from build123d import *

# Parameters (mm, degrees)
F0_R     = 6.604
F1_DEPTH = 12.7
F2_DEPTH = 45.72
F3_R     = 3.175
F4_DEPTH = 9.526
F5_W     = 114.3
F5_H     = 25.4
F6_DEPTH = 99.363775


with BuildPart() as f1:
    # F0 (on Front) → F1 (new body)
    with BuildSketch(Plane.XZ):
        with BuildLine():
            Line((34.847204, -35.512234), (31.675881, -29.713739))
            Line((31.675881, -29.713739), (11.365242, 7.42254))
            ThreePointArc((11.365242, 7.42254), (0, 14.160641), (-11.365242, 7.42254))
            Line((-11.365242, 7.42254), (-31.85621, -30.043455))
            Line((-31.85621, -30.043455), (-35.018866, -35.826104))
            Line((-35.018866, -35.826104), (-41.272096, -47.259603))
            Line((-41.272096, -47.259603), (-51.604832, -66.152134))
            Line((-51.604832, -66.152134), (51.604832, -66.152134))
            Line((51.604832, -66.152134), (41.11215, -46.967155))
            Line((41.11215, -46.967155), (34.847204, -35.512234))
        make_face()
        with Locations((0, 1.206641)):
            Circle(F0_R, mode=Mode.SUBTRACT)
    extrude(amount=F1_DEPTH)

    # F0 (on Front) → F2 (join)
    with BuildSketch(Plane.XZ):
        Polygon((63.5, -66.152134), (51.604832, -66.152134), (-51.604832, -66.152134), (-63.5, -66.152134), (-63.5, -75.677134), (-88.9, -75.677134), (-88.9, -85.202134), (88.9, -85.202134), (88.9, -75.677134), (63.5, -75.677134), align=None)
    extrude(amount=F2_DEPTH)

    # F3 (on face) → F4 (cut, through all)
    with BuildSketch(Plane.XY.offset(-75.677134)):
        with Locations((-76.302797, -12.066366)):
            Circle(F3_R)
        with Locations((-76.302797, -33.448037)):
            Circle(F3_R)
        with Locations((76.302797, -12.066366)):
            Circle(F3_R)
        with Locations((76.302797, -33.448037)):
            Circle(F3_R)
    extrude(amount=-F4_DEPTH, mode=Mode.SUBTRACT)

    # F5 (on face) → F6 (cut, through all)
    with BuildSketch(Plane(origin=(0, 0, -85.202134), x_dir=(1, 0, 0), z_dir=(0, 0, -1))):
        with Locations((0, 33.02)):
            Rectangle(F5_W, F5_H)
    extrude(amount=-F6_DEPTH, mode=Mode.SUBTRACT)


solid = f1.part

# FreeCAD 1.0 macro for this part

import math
import FreeCAD as App
import Part
import Sketcher
Q = App.Units.Quantity


def add_polygon(sketch, points):
    """Adds a closed chain of lines whose ends are joined by coincident constraints."""
    first, n = sketch.GeometryCount, len(points)
    for a, b in zip(points, points[1:] + points[:1]):
        sketch.addGeometry(Part.LineSegment(App.Vector(*a, 0), App.Vector(*b, 0)), False)
    for i in range(n):
        sketch.addConstraint(Sketcher.Constraint("Coincident", first + i, 2, first + (i + 1) % n, 1))

doc = App.newDocument("Part")
body = doc.addObject("PartDesign::Body", "Body")

# Sketch on XZ plane
sketch1 = body.newObject("Sketcher::SketchObject", "Sketch")
sketch1.AttachmentSupport = (doc.getObject("XZ_Plane"), [""])
sketch1.MapMode = "FlatFace"
sketch1.addGeometry(Part.LineSegment(App.Vector(34.847204, -35.512234, 0), App.Vector(31.675881, -29.713739, 0)), False)
sketch1.addGeometry(Part.LineSegment(App.Vector(31.675881, -29.713739, 0), App.Vector(11.365242, 7.42254, 0)), False)
sketch1.addGeometry(Part.ArcOfCircle(Part.Circle(App.Vector(0, 1.20664, 0), App.Vector(0, 0, 1), 12.954001), math.radians(28.675215), math.radians(151.324785)), False)
sketch1.addGeometry(Part.LineSegment(App.Vector(-11.365242, 7.42254, 0), App.Vector(-31.85621, -30.043455, 0)), False)
sketch1.addGeometry(Part.LineSegment(App.Vector(-31.85621, -30.043455, 0), App.Vector(-35.018866, -35.826104, 0)), False)
sketch1.addGeometry(Part.LineSegment(App.Vector(-35.018866, -35.826104, 0), App.Vector(-41.272096, -47.259603, 0)), False)
sketch1.addGeometry(Part.LineSegment(App.Vector(-41.272096, -47.259603, 0), App.Vector(-51.604832, -66.152134, 0)), False)
sketch1.addGeometry(Part.LineSegment(App.Vector(-51.604832, -66.152134, 0), App.Vector(51.604832, -66.152134, 0)), False)
sketch1.addGeometry(Part.LineSegment(App.Vector(51.604832, -66.152134, 0), App.Vector(41.11215, -46.967155, 0)), False)
sketch1.addGeometry(Part.LineSegment(App.Vector(41.11215, -46.967155, 0), App.Vector(34.847204, -35.512234, 0)), False)
sketch1.addGeometry(Part.Circle(App.Vector(0, 1.206641, 0), App.Vector(0, 0, 1), 6.604), False)
sketch1.addConstraint(Sketcher.Constraint("Coincident", 0, 2, 1, 1))
sketch1.addConstraint(Sketcher.Constraint("Tangent", 1, 2, 2, 1))
sketch1.addConstraint(Sketcher.Constraint("Tangent", 2, 2, 3, 1))
sketch1.addConstraint(Sketcher.Constraint("Coincident", 3, 2, 4, 1))
sketch1.addConstraint(Sketcher.Constraint("Coincident", 4, 2, 5, 1))
sketch1.addConstraint(Sketcher.Constraint("Coincident", 5, 2, 6, 1))
sketch1.addConstraint(Sketcher.Constraint("Coincident", 6, 2, 7, 1))
sketch1.addConstraint(Sketcher.Constraint("Coincident", 7, 2, 8, 1))
sketch1.addConstraint(Sketcher.Constraint("Coincident", 8, 2, 9, 1))
sketch1.addConstraint(Sketcher.Constraint("Coincident", 9, 2, 0, 1))
sketch1.addConstraint(Sketcher.Constraint("Horizontal", 7))
sketch1.addConstraint(Sketcher.Constraint("Coincident", 10, 3, 2, 3))
sketch1.addConstraint(Sketcher.Constraint("Symmetric", 1, 2, 2, 2, -2))
sketch1.addConstraint(Sketcher.Constraint("Parallel", 0, 1))
sketch1.addConstraint(Sketcher.Constraint("Parallel", 3, 4))
sketch1.addConstraint(Sketcher.Constraint("Parallel", 4, 5))
sketch1.addConstraint(Sketcher.Constraint("Parallel", 5, 6))
sketch1.addConstraint(Sketcher.Constraint("Parallel", 1, 8))
sketch1.addConstraint(Sketcher.Constraint("Parallel", 8, 9))
sketch1.addConstraint(Sketcher.Constraint("Diameter", 10, Q("0.52 in")))
sketch1.addConstraint(Sketcher.Constraint("Radius", 2, Q("0.51 in")))
sketch1.addConstraint(Sketcher.Constraint("Distance", 5, Q("13.031799 mm")))
sketch1.addConstraint(Sketcher.Constraint("DistanceY", 10, 3, 1, 2, Q("6.215899 mm")))
sketch1.addConstraint(Sketcher.Constraint("DistanceY", 7, 2, 9, 2, Q("30.6399 mm")))
sketch1.addConstraint(Sketcher.Constraint("Distance", 4, Q("6.591011 mm")))
sketch1.addConstraint(Sketcher.Constraint("DistanceX", 7, 1, 7, 2, Q("103.209664 mm")))
sketch1.addConstraint(Sketcher.Constraint("DistanceY", -1, 1, 2, 3, Q("1.20664 mm")))
sketch1.addConstraint(Sketcher.Constraint("DistanceX", -1, 1, 0, 2, Q("31.675881 mm")))
sketch1.addConstraint(Sketcher.Constraint("DistanceX", 3, 2, -1, 1, Q("31.85621 mm")))
sketch1.addConstraint(Sketcher.Constraint("DistanceX", -1, 1, 8, 2, Q("41.11215 mm")))
pad1 = body.newObject("PartDesign::Pad", "Pad")
pad1.Profile = sketch1
pad1.Length = Q("0.5 in")

# Sketch on XZ plane
sketch2 = body.newObject("Sketcher::SketchObject", "Sketch001")
sketch2.AttachmentSupport = (doc.getObject("XZ_Plane"), [""])
sketch2.MapMode = "FlatFace"
add_polygon(sketch2, [(63.5, -66.152134), (-63.5, -66.152134), (-63.5, -75.677134), (-88.9, -75.677134), (-88.9, -85.202134), (88.9, -85.202134), (88.9, -75.677134), (63.5, -75.677134)])  # lines 0-7
sketch2.addConstraint(Sketcher.Constraint("Horizontal", 0))
sketch2.addConstraint(Sketcher.Constraint("Vertical", 1))
sketch2.addConstraint(Sketcher.Constraint("Horizontal", 2))
sketch2.addConstraint(Sketcher.Constraint("Vertical", 3))
sketch2.addConstraint(Sketcher.Constraint("Horizontal", 4))
sketch2.addConstraint(Sketcher.Constraint("Vertical", 5))
sketch2.addConstraint(Sketcher.Constraint("Horizontal", 6))
sketch2.addConstraint(Sketcher.Constraint("Vertical", 7))
sketch2.addConstraint(Sketcher.Constraint("Symmetric", 2, 2, 5, 2, -2))
sketch2.addConstraint(Sketcher.Constraint("Equal", 2, 6))
sketch2.addConstraint(Sketcher.Constraint("Equal", 1, 3))
sketch2.addConstraint(Sketcher.Constraint("DistanceX", 0, 2, 0, 1, Q("5 in")))
sketch2.addConstraint(Sketcher.Constraint("DistanceX", 2, 2, 2, 1, Q("1 in")))
sketch2.addConstraint(Sketcher.Constraint("DistanceY", 1, 2, 1, 1, Q("0.375 in")))
sketch2.addConstraint(Sketcher.Constraint("DistanceY", 0, 2, -1, 1, Q("66.152134 mm")))
pad2 = body.newObject("PartDesign::Pad", "Pad001")
pad2.Profile = sketch2
pad2.Length = Q("1.8 in")

# Sketch on XY plane
sketch3 = body.newObject("Sketcher::SketchObject", "Sketch002")
sketch3.AttachmentSupport = (doc.getObject("XY_Plane"), [""])
sketch3.MapMode = "FlatFace"
sketch3.AttachmentOffset = App.Placement(App.Vector(0, 0, -75.677134), App.Rotation())
sketch3.addGeometry(Part.Circle(App.Vector(-76.302797, -12.066366, 0), App.Vector(0, 0, 1), 3.175), False)
sketch3.addGeometry(Part.Circle(App.Vector(-76.302797, -33.448037, 0), App.Vector(0, 0, 1), 3.175), False)
sketch3.addGeometry(Part.Circle(App.Vector(76.302797, -12.066366, 0), App.Vector(0, 0, 1), 3.175), False)
sketch3.addGeometry(Part.Circle(App.Vector(76.302797, -33.448037, 0), App.Vector(0, 0, 1), 3.175), False)
sketch3.addConstraint(Sketcher.Constraint("Equal", 0, 1))
sketch3.addConstraint(Sketcher.Constraint("Equal", 1, 2))
sketch3.addConstraint(Sketcher.Constraint("Equal", 2, 3))
sketch3.addConstraint(Sketcher.Constraint("Symmetric", 0, 3, 2, 3, -2))
sketch3.addConstraint(Sketcher.Constraint("Symmetric", 1, 3, 3, 3, -2))
sketch3.addConstraint(Sketcher.Constraint("Vertical", 0, 3, 1, 3))
sketch3.addConstraint(Sketcher.Constraint("Diameter", 0, Q("0.25 in")))
sketch3.addConstraint(Sketcher.Constraint("DistanceY", 1, 3, 0, 3, Q("21.381671 mm")))
sketch3.addConstraint(Sketcher.Constraint("DistanceX", 0, 3, -1, 1, Q("76.302797 mm")))
sketch3.addConstraint(Sketcher.Constraint("DistanceY", 0, 3, -1, 1, Q("12.066366 mm")))
pocket1 = body.newObject("PartDesign::Pocket", "Pocket")
pocket1.Profile = sketch3
pocket1.Type = "ThroughAll"

# Sketch on XY plane
sketch4 = body.newObject("Sketcher::SketchObject", "Sketch003")
sketch4.AttachmentSupport = (doc.getObject("XY_Plane"), [""])
sketch4.MapMode = "FlatFace"
sketch4.AttachmentOffset = App.Placement(App.Vector(0, 0, -85.202134), App.Rotation())
add_polygon(sketch4, [(-57.15, -45.72), (-57.15, -20.32), (57.15, -20.32), (57.15, -45.72)])  # lines 0-3
sketch4.addConstraint(Sketcher.Constraint("Vertical", 0))
sketch4.addConstraint(Sketcher.Constraint("Horizontal", 1))
sketch4.addConstraint(Sketcher.Constraint("Vertical", 2))
sketch4.addConstraint(Sketcher.Constraint("Horizontal", 3))
sketch4.addConstraint(Sketcher.Constraint("DistanceY", 0, 1, 0, 2, Q("1 in")))
sketch4.addConstraint(Sketcher.Constraint("DistanceX", 1, 1, 1, 2, Q("4.5 in")))
sketch4.addConstraint(Sketcher.Constraint("DistanceY", 0, 2, -1, 1, Q("0.8 in")))
sketch4.addConstraint(Sketcher.Constraint("DistanceX", 0, 2, -1, 1, Q("2.25 in")))
pocket2 = body.newObject("PartDesign::Pocket", "Pocket001")
pocket2.Profile = sketch4
pocket2.Type = "ThroughAll"
pocket2.Reversed = True

doc.recompute()
